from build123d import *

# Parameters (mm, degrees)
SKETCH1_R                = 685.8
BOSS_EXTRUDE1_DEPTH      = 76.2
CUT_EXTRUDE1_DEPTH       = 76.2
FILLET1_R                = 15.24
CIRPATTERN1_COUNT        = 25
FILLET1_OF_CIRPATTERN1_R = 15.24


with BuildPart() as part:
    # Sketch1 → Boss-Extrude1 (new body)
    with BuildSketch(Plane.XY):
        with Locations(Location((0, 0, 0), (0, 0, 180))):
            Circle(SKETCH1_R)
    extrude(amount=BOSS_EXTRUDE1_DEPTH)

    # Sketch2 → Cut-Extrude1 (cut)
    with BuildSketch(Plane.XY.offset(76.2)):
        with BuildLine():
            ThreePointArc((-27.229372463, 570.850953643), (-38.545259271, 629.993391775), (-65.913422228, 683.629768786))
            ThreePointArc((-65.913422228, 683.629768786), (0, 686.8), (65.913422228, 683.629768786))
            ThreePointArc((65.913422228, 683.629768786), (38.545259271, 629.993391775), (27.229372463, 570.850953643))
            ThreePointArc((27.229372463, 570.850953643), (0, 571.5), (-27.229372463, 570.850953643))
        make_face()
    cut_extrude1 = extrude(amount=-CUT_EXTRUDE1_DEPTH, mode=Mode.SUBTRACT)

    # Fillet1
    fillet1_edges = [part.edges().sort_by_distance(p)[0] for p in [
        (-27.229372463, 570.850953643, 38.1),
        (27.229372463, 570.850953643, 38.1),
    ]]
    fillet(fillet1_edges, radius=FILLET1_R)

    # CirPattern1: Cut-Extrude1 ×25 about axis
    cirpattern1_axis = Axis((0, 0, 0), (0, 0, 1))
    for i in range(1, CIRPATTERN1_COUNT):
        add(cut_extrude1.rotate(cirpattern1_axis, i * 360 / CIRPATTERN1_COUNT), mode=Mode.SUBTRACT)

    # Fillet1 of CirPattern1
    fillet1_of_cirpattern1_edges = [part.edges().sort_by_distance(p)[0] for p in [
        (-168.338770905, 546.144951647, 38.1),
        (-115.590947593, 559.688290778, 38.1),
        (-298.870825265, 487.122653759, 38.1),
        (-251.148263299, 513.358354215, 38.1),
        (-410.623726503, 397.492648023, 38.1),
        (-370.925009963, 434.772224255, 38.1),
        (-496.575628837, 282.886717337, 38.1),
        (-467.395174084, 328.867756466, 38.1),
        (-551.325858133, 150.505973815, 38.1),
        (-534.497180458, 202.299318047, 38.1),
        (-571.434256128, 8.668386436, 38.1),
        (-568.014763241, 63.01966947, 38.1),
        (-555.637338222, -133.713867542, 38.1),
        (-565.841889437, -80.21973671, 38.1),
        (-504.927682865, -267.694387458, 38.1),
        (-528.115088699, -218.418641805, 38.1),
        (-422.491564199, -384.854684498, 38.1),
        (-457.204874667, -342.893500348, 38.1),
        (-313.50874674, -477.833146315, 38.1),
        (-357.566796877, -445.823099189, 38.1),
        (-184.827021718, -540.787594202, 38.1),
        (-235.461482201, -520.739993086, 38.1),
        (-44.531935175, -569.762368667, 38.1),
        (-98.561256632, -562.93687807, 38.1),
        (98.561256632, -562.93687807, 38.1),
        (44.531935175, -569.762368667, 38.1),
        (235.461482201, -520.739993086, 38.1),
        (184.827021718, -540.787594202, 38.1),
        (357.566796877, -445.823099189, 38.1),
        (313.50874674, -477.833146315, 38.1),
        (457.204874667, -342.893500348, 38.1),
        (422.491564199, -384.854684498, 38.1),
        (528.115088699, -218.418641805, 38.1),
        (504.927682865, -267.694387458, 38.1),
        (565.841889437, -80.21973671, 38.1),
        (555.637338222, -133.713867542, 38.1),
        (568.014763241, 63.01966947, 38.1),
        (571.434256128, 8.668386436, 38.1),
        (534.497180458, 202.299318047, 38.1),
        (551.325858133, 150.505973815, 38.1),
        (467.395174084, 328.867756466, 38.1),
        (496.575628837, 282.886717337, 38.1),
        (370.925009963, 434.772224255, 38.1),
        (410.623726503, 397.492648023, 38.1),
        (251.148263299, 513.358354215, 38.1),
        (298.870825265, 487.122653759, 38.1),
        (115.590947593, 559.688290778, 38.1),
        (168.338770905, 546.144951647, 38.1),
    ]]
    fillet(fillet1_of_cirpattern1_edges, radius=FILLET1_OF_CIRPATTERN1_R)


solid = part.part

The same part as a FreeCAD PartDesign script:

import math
import FreeCAD as App
import Part
import Sketcher
Q = App.Units.Quantity


def edges_at(feature, points):
    """Names of the edges that pass closest to the given points."""
    edges = feature.Shape.Edges
    near = lambda p: min(range(len(edges)), key=lambda i: edges[i].distToShape(Part.Vertex(*p))[0])
    return sorted({f"Edge{near(p) + 1}" for p in points})

doc = App.newDocument("Part")
params = doc.addObject("Spreadsheet::Sheet", "Params")
for row, (alias, value) in enumerate([
    ("sketch1_diameter", "54 in"),
    ("pad1_length", "3 in"),
    ("sketch2_radius", "22.5 in"),
    ("pocket1_length", "3 in"),
    ("fillet_radius", "0.6 in"),
    ("fillet2_radius", "0.6 in"),
], start=1):
    params.set(f"A{row}", alias)
    params.set(f"B{row}", "=" + value)
    params.setAlias(f"B{row}", alias)

body = doc.addObject("PartDesign::Body", "Body")

# Sketch on XY plane
sketch1 = body.newObject("Sketcher::SketchObject", "Sketch")
sketch1.AttachmentSupport = (doc.getObject("XY_Plane"), [""])
sketch1.MapMode = "FlatFace"
sketch1.addGeometry(Part.Circle(App.Vector(0, 0, 0), App.Vector(0, 0, 1), 686), False)
sketch1.addConstraint([
    Sketcher.Constraint("Coincident", 0, 3, -1, 1),
    Sketcher.Constraint("Diameter", 0, Q("54 in")),
])
sketch1.setExpression("Constraints[1]", "Params.sketch1_diameter")
pad1 = body.newObject("PartDesign::Pad", "Pad")
pad1.Profile = sketch1
pad1.setExpression("Length", "Params.pad1_length")

# Sketch on XY plane
sketch2 = body.newObject("Sketcher::SketchObject", "Sketch001")
sketch2.AttachmentSupport = (doc.getObject("XY_Plane"), [""])
sketch2.MapMode = "FlatFace"
sketch2.AttachmentOffset = App.Placement(App.Vector(0, 0, 3 * 25.4), App.Rotation())
sketch2.addGeometry([
    Part.ArcOfCircle(Part.Circle(App.Vector(-241, 561, 0), App.Vector(0, 0, 1), 214), math.radians(3), math.radians(35)),
    Part.ArcOfCircle(Part.Circle(App.Vector(0, 0, 0), App.Vector(0, 0, 1), 571), math.radians(87.27), math.radians(92.73)),
    Part.ArcOfCircle(Part.Circle(App.Vector(241, 561, 0), App.Vector(0, 0, 1), 214), math.radians(145), math.radians(177)),
    Part.ArcOfCircle(Part.Circle(App.Vector(0, 0, 0), App.Vector(0, 0, 1), 687), math.radians(84.49), math.radians(95.51)),
], False)
sketch2.addConstraint([
    Sketcher.Constraint("Coincident", 0, 1, 1, 2),
    Sketcher.Constraint("Coincident", 1, 1, 2, 2),
    Sketcher.Constraint("Coincident", 2, 1, 3, 1),
    Sketcher.Constraint("Coincident", 3, 2, 0, 2),
    Sketcher.Constraint("Coincident", 1, 3, -1, 1),
    Sketcher.Constraint("Coincident", 3, 3, -1, 1),
    Sketcher.Constraint("Equal", 0, 2),
    Sketcher.Constraint("Symmetric", 0, 3, 2, 3, -2),
    Sketcher.Constraint("Radius", 1, Q("22.5 in")),
    Sketcher.Constraint("Radius", 3, 686.8),
    Sketcher.Constraint("Radius", 0, 213.659732),
    Sketcher.Constraint("DistanceY", -1, 1, 0, 3, 560.67104),
    Sketcher.Constraint("DistanceX", 0, 3, -1, 1, 240.646453),
])
sketch2.setExpression("Constraints[8]", "Params.sketch2_radius")
pocket1 = body.newObject("PartDesign::Pocket", "Pocket")
pocket1.Profile = sketch2
pocket1.setExpression("Length", "Params.pocket1_length")
doc.recompute()

fillet = body.newObject("PartDesign::Fillet", "Fillet")
fillet.Base = (pocket1, edges_at(pocket1, [(-27.229, 570.851, 38.1), (27.229, 570.851, 38.1)]))
fillet.setExpression("Radius", "Params.fillet_radius")
doc.recompute()

polarpattern = body.newObject("PartDesign::PolarPattern", "PolarPattern")
polarpattern.Originals = [pocket1]
polarpattern.Axis = (doc.getObject("Z_Axis"), [""])
polarpattern.Angle = 360
polarpattern.Occurrences = 25
body.Tip = polarpattern
doc.recompute()

fillet2 = body.newObject("PartDesign::Fillet", "Fillet001")
fillet2.Base = (polarpattern, edges_at(polarpattern, [
    (-168.339, 546.145, 38.1),
    (-115.591, 559.688, 38.1),
    (-298.871, 487.123, 38.1),
    (-251.148, 513.358, 38.1),
    (-410.624, 397.493, 38.1),
    (-370.925, 434.772, 38.1),
    (-496.576, 282.887, 38.1),
    (-467.395, 328.868, 38.1),
    (-551.326, 150.506, 38.1),
    (-534.497, 202.299, 38.1),
    (-571.434, 8.668, 38.1),
    (-568.015, 63.02, 38.1),
    (-555.637, -133.714, 38.1),
    (-565.842, -80.22, 38.1),
    (-504.928, -267.694, 38.1),
    (-528.115, -218.419, 38.1),
    (-422.492, -384.855, 38.1),
    (-457.205, -342.894, 38.1),
    (-313.509, -477.833, 38.1),
    (-357.567, -445.823, 38.1),
    (-184.827, -540.788, 38.1),
    (-235.461, -520.74, 38.1),
    (-44.532, -569.762, 38.1),
    (-98.561, -562.937, 38.1),
    (98.561, -562.937, 38.1),
    (44.532, -569.762, 38.1),
    (235.461, -520.74, 38.1),
    (184.827, -540.788, 38.1),
    (357.567, -445.823, 38.1),
    (313.509, -477.833, 38.1),
    (457.205, -342.894, 38.1),
    (422.492, -384.855, 38.1),
    (528.115, -218.419, 38.1),
    (504.928, -267.694, 38.1),
    (565.842, -80.22, 38.1),
    (555.637, -133.714, 38.1),
    (568.015, 63.02, 38.1),
    (571.434, 8.668, 38.1),
    (534.497, 202.299, 38.1),
    (551.326, 150.506, 38.1),
    (467.395, 328.868, 38.1),
    (496.576, 282.887, 38.1),
    (370.925, 434.772, 38.1),
    (410.624, 397.493, 38.1),
    (251.148, 513.358, 38.1),
    (298.871, 487.123, 38.1),
    (115.591, 559.688, 38.1),
    (168.339, 546.145, 38.1),
]))
fillet2.setExpression("Radius", "Params.fillet2_radius")

doc.recompute()
